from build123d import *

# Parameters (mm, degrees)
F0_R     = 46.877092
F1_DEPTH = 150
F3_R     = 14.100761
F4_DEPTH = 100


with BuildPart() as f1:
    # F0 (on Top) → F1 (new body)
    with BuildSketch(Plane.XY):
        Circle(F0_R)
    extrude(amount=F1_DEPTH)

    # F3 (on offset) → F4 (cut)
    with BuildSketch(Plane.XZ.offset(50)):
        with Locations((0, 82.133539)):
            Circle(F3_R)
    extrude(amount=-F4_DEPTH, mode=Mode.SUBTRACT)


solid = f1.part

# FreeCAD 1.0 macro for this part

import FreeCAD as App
import Part
import Sketcher
from FreeCAD import Vector

doc = App.newDocument("Part")
body = doc.addObject("PartDesign::Body", "Body")

sketch1 = doc.addObject("Sketcher::SketchObject", "Sketch")
body.addObject(sketch1)
sketch1.AttachmentSupport = (doc.XY_Plane, [""])
sketch1.MapMode = "FlatFace"
sketch1.addGeometry(Part.Circle(Vector(0, 0, 0), Vector(0, 0, 1), 47), False)
sketch1.addConstraint(Sketcher.Constraint("Coincident", 0, 3, -1, 1))
sketch1.addConstraint(Sketcher.Constraint("Diameter", 0, 93.754184))
pad1 = doc.addObject("PartDesign::Pad", "Pad")
body.addObject(pad1)
pad1.Profile = sketch1
pad1.Length = 150

sketch2 = doc.addObject("Sketcher::SketchObject", "Sketch001")
body.addObject(sketch2)
sketch2.AttachmentSupport = (doc.XZ_Plane, [""])
sketch2.MapMode = "FlatFace"
sketch2.AttachmentOffset = App.Placement(Vector(0, 0, 50), App.Rotation())
sketch2.addGeometry(Part.Circle(Vector(0, 82, 0), Vector(0, 0, 1), 14), False)
sketch2.addConstraint(Sketcher.Constraint("PointOnObject", 0, 3, -2))
sketch2.addConstraint(Sketcher.Constraint("Diameter", 0, 28.201522))
sketch2.addConstraint(Sketcher.Constraint("DistanceY", -1, 1, 0, 3, 82.133539))
pocket1 = doc.addObject("PartDesign::Pocket", "Pocket")
body.addObject(pocket1)
pocket1.Profile = sketch2
pocket1.Length = 100

doc.recompute()
